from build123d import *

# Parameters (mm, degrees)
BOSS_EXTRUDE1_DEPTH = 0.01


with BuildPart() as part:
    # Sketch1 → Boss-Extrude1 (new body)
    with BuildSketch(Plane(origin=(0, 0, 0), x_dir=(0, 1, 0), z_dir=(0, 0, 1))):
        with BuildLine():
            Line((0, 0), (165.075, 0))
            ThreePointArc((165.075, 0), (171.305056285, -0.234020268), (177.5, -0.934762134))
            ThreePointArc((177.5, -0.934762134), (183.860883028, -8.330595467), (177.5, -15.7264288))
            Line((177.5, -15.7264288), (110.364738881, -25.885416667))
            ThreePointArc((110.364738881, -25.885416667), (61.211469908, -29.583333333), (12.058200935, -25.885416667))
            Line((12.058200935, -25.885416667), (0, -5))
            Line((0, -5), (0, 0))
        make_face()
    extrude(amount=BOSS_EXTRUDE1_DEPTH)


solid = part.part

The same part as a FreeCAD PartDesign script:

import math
import FreeCAD as App
import Part
import Sketcher
from FreeCAD import Vector
Q = App.Units.Quantity

doc = App.newDocument("Part")
body = doc.addObject("PartDesign::Body", "Body")

# Sketch on XY plane
sketch1 = body.newObject("Sketcher::SketchObject", "Sketch")
sketch1.AttachmentSupport = (doc.getObject("XY_Plane"), [""])
sketch1.MapMode = "FlatFace"
sketch1.addGeometry([
    Part.LineSegment(Vector(0, 165, 0), Vector(0, 0, 0)),  # 0
    Part.LineSegment(Vector(0, 0, 0), Vector(5, 0, 0)),  # 1
    Part.LineSegment(Vector(5, 0, 0), Vector(26, 12, 0)),  # 2
    Part.ArcOfCircle(Part.Circle(Vector(-299, 61, 0), Vector(0, 0, 1), 329), math.radians(-8.6), math.radians(8.6)),  # 3
    Part.LineSegment(Vector(26, 110, 0), Vector(16, 178, 0)),  # 4
    Part.ArcOfCircle(Part.Circle(Vector(8, 176, 0), Vector(0, 0, 1), 7), math.radians(9), math.radians(171)),  # 5
    Part.ArcOfCircle(Part.Circle(Vector(83, 165, 0), Vector(0, 0, 1), 83), math.radians(171.4), math.radians(180)),  # 6
], False)
sketch1.addConstraint([
    Sketcher.Constraint("Coincident", 0, 2, 1, 1),
    Sketcher.Constraint("Coincident", 1, 2, 2, 1),
    Sketcher.Constraint("Coincident", 2, 2, 3, 1),
    Sketcher.Constraint("Tangent", 3, 2, 4, 1),
    Sketcher.Constraint("Tangent", 4, 2, 5, 1),
    Sketcher.Constraint("Tangent", 5, 2, 6, 1),
    Sketcher.Constraint("Tangent", 6, 2, 0, 1),
    Sketcher.Constraint("Vertical", 0),
    Sketcher.Constraint("Horizontal", 1),
    Sketcher.Constraint("Coincident", 0, 2, -1, 1),
    Sketcher.Constraint("Horizontal", 4, 2, 5, 2),
    Sketcher.Constraint("Vertical", 2, 2, 3, 2),
    Sketcher.Constraint("DistanceX", 1, 1, 1, 2, 5.0),
    Sketcher.Constraint("Angle", 2, Q("30 deg")),
    Sketcher.Constraint("DistanceY", -1, 1, 4, 2, 177.5),
    Sketcher.Constraint("DistanceY", 0, 2, 0, 1, 165.075),
    Sketcher.Constraint("Radius", 3, 328.52531),
    Sketcher.Constraint("Radius", 5, 7.480029),
    Sketcher.Constraint("Radius", 6, 83.044873),
])
pad1 = body.newObject("PartDesign::Pad", "Pad")
pad1.Profile = sketch1
pad1.Length = 0.01

doc.recompute()
